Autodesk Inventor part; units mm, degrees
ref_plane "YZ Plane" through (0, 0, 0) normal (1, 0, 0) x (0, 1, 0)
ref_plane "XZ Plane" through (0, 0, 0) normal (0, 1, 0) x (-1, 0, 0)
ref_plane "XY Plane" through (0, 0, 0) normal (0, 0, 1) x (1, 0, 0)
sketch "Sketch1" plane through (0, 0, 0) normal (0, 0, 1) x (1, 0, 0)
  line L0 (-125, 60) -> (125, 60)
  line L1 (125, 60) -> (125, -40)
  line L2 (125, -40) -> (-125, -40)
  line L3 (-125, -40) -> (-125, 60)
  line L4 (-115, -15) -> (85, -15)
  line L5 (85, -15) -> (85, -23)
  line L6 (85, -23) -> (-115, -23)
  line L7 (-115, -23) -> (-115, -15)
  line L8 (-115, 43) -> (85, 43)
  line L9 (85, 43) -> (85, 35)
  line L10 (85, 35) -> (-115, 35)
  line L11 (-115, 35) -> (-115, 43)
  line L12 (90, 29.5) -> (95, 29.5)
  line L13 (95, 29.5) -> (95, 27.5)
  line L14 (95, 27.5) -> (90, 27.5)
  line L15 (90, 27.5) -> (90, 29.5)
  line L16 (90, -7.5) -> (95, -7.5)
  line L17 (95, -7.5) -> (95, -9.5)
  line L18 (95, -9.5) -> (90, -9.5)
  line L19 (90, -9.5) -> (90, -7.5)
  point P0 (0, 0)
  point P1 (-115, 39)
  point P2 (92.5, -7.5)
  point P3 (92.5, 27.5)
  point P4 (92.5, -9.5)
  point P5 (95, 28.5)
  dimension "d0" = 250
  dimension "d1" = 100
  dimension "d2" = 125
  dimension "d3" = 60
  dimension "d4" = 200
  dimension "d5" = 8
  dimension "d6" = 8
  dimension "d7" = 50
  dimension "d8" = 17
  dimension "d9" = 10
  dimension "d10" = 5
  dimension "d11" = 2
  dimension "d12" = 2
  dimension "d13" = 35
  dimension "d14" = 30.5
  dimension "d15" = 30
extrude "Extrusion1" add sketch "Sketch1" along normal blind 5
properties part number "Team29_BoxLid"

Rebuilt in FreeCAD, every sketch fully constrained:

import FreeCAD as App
import Part
import Sketcher
from FreeCAD import Vector
Q = App.Units.Quantity


def add_polygon(sketch, points):
    """Adds a closed chain of lines whose ends are joined by coincident constraints."""
    first, n = sketch.GeometryCount, len(points)
    for a, b in zip(points, points[1:] + points[:1]):
        sketch.addGeometry(Part.LineSegment(App.Vector(*a, 0), App.Vector(*b, 0)), False)
    for i in range(n):
        sketch.addConstraint(Sketcher.Constraint("Coincident", first + i, 2, first + (i + 1) % n, 1))

doc = App.newDocument("Part")
body = doc.addObject("PartDesign::Body", "Body")

# Sketch on XY plane
sketch1 = doc.addObject("Sketcher::SketchObject", "Sketch")
body.addObject(sketch1)
sketch1.AttachmentSupport = (doc.XY_Plane, [""])
sketch1.MapMode = "FlatFace"
add_polygon(sketch1, [(125, 60), (-125, 60), (-125, -40), (125, -40)])  # lines 0-3
add_polygon(sketch1, [(-115, -23), (-115, -15), (85, -15), (85, -23)])  # lines 4-7
add_polygon(sketch1, [(90, -9.5), (90, -7.5), (95, -7.5), (95, -9.5)])  # lines 8-11
add_polygon(sketch1, [(-115, 35), (-115, 43), (85, 43), (85, 35)])  # lines 12-15
add_polygon(sketch1, [(90, 27.5), (90, 29.5), (95, 29.5), (95, 27.5)])  # lines 16-19
sketch1.addConstraint([
    Sketcher.Constraint("Horizontal", 0),
    Sketcher.Constraint("Vertical", 1),
    Sketcher.Constraint("Horizontal", 2),
    Sketcher.Constraint("Vertical", 3),
    Sketcher.Constraint("Vertical", 4),
    Sketcher.Constraint("Horizontal", 5),
    Sketcher.Constraint("Vertical", 6),
    Sketcher.Constraint("Horizontal", 7),
    Sketcher.Constraint("Vertical", 8),
    Sketcher.Constraint("Horizontal", 9),
    Sketcher.Constraint("Vertical", 10),
    Sketcher.Constraint("Horizontal", 11),
    Sketcher.Constraint("Vertical", 12),
    Sketcher.Constraint("Horizontal", 13),
    Sketcher.Constraint("Vertical", 14),
    Sketcher.Constraint("Horizontal", 15),
    Sketcher.Constraint("Vertical", 16),
    Sketcher.Constraint("Horizontal", 17),
    Sketcher.Constraint("Vertical", 18),
    Sketcher.Constraint("Horizontal", 19),
    Sketcher.Constraint("Vertical", 7, 2, 12, 2),
    Sketcher.Constraint("Vertical", 6, 2, 13, 2),
    Sketcher.Constraint("Vertical", 11, 2, 16, 2),
    Sketcher.Constraint("Vertical", 10, 2, 17, 2),
    Sketcher.Constraint("Equal", 6, 12),
    Sketcher.Constraint("Equal", 10, 16),
    Sketcher.Constraint("DistanceX", 0, 2, 0, 1, Q("250 mm")),
    Sketcher.Constraint("DistanceX", 5, 1, 5, 2, Q("200 mm")),
    Sketcher.Constraint("DistanceX", 9, 1, 9, 2, Q("5 mm")),
    Sketcher.Constraint("DistanceY", 1, 2, 1, 1, Q("100 mm")),
    Sketcher.Constraint("DistanceY", 4, 1, 4, 2, Q("8 mm")),
    Sketcher.Constraint("DistanceY", 8, 1, 8, 2, Q("2 mm")),
    Sketcher.Constraint("DistanceX", 0, 2, -1, 1, Q("125 mm")),
    Sketcher.Constraint("DistanceY", -1, 1, 0, 2, Q("60 mm")),
    Sketcher.Constraint("DistanceY", -1, 1, 14, 2, Q("35 mm")),
    Sketcher.Constraint("DistanceX", 1, 2, 4, 2, Q("10 mm")),
    Sketcher.Constraint("DistanceY", 2, 2, 6, 2, Q("17 mm")),
    Sketcher.Constraint("DistanceX", 5, 2, 8, 2, Q("5 mm")),
    Sketcher.Constraint("DistanceY", 9, 2, 18, 2, Q("35 mm")),
    Sketcher.Constraint("DistanceY", 2, 2, 10, 2, Q("30.5 mm")),
])
pad1 = doc.addObject("PartDesign::Pad", "Pad")
body.addObject(pad1)
pad1.Profile = sketch1
pad1.Length = 5

doc.recompute()
